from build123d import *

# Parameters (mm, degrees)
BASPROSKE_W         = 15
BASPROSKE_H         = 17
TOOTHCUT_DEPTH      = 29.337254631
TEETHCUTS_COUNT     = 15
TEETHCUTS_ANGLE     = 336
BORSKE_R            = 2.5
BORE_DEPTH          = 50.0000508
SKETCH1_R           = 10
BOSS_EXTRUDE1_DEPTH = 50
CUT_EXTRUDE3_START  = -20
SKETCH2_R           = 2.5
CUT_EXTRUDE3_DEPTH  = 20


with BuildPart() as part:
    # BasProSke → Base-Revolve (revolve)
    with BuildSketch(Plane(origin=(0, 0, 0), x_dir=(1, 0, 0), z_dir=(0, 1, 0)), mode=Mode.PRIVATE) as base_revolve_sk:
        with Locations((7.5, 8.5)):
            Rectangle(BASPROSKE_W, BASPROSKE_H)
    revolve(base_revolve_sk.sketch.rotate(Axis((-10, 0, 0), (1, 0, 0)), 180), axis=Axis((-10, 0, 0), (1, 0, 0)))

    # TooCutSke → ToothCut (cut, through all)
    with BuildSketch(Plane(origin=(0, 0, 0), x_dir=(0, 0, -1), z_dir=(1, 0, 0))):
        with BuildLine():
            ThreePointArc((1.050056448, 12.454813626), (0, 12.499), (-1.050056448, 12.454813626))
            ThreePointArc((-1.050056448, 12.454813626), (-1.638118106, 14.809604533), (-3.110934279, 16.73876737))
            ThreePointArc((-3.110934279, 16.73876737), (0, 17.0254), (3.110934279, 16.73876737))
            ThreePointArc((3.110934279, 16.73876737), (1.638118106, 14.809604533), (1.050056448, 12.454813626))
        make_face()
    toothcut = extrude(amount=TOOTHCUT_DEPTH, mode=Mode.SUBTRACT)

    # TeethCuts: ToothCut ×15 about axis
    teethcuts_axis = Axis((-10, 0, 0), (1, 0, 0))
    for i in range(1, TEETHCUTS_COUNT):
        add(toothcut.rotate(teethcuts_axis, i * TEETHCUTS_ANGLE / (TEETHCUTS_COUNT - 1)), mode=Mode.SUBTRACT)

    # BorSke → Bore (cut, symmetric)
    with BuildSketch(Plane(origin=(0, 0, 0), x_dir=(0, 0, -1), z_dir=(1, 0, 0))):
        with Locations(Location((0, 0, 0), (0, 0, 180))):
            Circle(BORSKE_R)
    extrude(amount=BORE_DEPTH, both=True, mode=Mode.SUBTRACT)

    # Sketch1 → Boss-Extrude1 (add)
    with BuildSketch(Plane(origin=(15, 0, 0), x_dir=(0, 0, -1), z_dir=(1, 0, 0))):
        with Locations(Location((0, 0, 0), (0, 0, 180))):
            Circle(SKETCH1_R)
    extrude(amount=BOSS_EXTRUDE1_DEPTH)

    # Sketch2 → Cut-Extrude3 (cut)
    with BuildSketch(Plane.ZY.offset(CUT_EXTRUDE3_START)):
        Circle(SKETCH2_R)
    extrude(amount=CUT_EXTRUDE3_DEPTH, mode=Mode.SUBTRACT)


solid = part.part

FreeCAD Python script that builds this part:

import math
import FreeCAD as App
import Part
import Sketcher
from FreeCAD import Vector

doc = App.newDocument("Part")
body = doc.addObject("PartDesign::Body", "Body")

sketch1 = doc.addObject("Sketcher::SketchObject", "Sketch")
body.addObject(sketch1)
sketch1.AttachmentSupport = (doc.XZ_Plane, [""])
sketch1.MapMode = "FlatFace"
sketch1.addGeometry([
    Part.LineSegment(Vector(0, -17, 0), Vector(0, 0, 0)),
    Part.LineSegment(Vector(0, 0, 0), Vector(15, 0, 0)),
    Part.LineSegment(Vector(15, 0, 0), Vector(15, -17, 0)),
    Part.LineSegment(Vector(15, -17, 0), Vector(0, -17, 0)),
], False)
sketch1.addConstraint([
    Sketcher.Constraint("Coincident", 0, 2, 1, 1),
    Sketcher.Constraint("Coincident", 1, 2, 2, 1),
    Sketcher.Constraint("Coincident", 2, 2, 3, 1),
    Sketcher.Constraint("Coincident", 3, 2, 0, 1),
    Sketcher.Constraint("Vertical", 0),
    Sketcher.Constraint("Horizontal", 1),
    Sketcher.Constraint("Vertical", 2),
    Sketcher.Constraint("Horizontal", 3),
    Sketcher.Constraint("Coincident", 0, 2, -1, 1),
    Sketcher.Constraint("DistanceX", 1, 1, 1, 2, 15.0),
    Sketcher.Constraint("DistanceY", 0, 1, 0, 2, 17.0),
])
revolution = doc.addObject("PartDesign::Revolution", "Revolution")
body.addObject(revolution)
revolution.Profile = sketch1
revolution.ReferenceAxis = (sketch1, ["H_Axis"])
revolution.Angle = 360

sketch2 = doc.addObject("Sketcher::SketchObject", "Sketch001")
body.addObject(sketch2)
sketch2.AttachmentSupport = (doc.YZ_Plane, [""])
sketch2.MapMode = "FlatFace"
sketch2.addGeometry([
    Part.ArcOfCircle(Part.Circle(Vector(0, 0, 0), Vector(0, 0, 1), 12.5), math.radians(-4.82), math.radians(4.82)),
    Part.ArcOfCircle(Part.Circle(Vector(12.2, -7, 0), Vector(0, 0, 1), 6), math.radians(41), math.radians(88)),
    Part.ArcOfCircle(Part.Circle(Vector(0, 0, 0), Vector(0, 0, 1), 17), math.radians(-11), math.radians(11)),
    Part.ArcOfCircle(Part.Circle(Vector(12.2, 7, 0), Vector(0, 0, 1), 6), math.radians(-88), math.radians(-41)),
], False)
sketch2.addConstraint([
    Sketcher.Constraint("Coincident", 0, 1, 1, 2),
    Sketcher.Constraint("Coincident", 1, 1, 2, 1),
    Sketcher.Constraint("Coincident", 2, 2, 3, 2),
    Sketcher.Constraint("Coincident", 3, 1, 0, 2),
    Sketcher.Constraint("Coincident", 0, 3, -1, 1),
    Sketcher.Constraint("Coincident", 2, 3, -1, 1),
    Sketcher.Constraint("Equal", 1, 3),
    Sketcher.Constraint("Symmetric", 1, 3, 3, 3, -1),
    Sketcher.Constraint("Radius", 1, 6.0),
    Sketcher.Constraint("Radius", 0, 12.499),
    Sketcher.Constraint("Radius", 2, 17.0254),
    Sketcher.Constraint("DistanceY", 1, 3, 3, 3, 14.089999),
    Sketcher.Constraint("DistanceX", -1, 1, 1, 3, 12.208521),
])
pocket1 = doc.addObject("PartDesign::Pocket", "Pocket")
body.addObject(pocket1)
pocket1.Profile = sketch2
pocket1.Type = "ThroughAll"
pocket1.Reversed = True
doc.recompute()

polarpattern = doc.addObject("PartDesign::PolarPattern", "PolarPattern")
body.addObject(polarpattern)
polarpattern.Originals = [pocket1]
polarpattern.Axis = (doc.X_Axis, [""])
polarpattern.Angle = 360
polarpattern.Occurrences = 15
body.Tip = polarpattern

sketch3 = doc.addObject("Sketcher::SketchObject", "Sketch002")
body.addObject(sketch3)
sketch3.AttachmentSupport = (doc.YZ_Plane, [""])
sketch3.MapMode = "FlatFace"
sketch3.addGeometry(Part.Circle(Vector(0, 0, 0), Vector(0, 0, 1), 2.5), False)
sketch3.addConstraint([
    Sketcher.Constraint("Coincident", 0, 3, -1, 1),
    Sketcher.Constraint("Diameter", 0, 5.0),
])
pocket2 = doc.addObject("PartDesign::Pocket", "Pocket001")
body.addObject(pocket2)
pocket2.Profile = sketch3
pocket2.Length = 100.000102
pocket2.Midplane = True

sketch4 = doc.addObject("Sketcher::SketchObject", "Sketch003")
body.addObject(sketch4)
sketch4.AttachmentSupport = (doc.YZ_Plane, [""])
sketch4.MapMode = "FlatFace"
sketch4.AttachmentOffset = App.Placement(Vector(0, 0, 15), App.Rotation())
sketch4.addGeometry(Part.Circle(Vector(0, 0, 0), Vector(0, 0, 1), 10), False)
sketch4.addConstraint([
    Sketcher.Constraint("Coincident", 0, 3, -1, 1),
    Sketcher.Constraint("Diameter", 0, 20.0),
])
pad1 = doc.addObject("PartDesign::Pad", "Pad")
body.addObject(pad1)
pad1.Profile = sketch4
pad1.Length = 50

sketch5 = doc.addObject("Sketcher::SketchObject", "Sketch004")
body.addObject(sketch5)
sketch5.AttachmentSupport = (doc.YZ_Plane, [""])
sketch5.MapMode = "FlatFace"
sketch5.AttachmentOffset = App.Placement(Vector(0, 0, 20), App.Rotation())
sketch5.addGeometry(Part.Circle(Vector(0, 0, 0), Vector(0, 0, 1), 2.5), False)
sketch5.addConstraint([
    Sketcher.Constraint("Coincident", 0, 3, -1, 1),
    Sketcher.Constraint("Diameter", 0, 5.0),
])
pocket3 = doc.addObject("PartDesign::Pocket", "Pocket002")
body.addObject(pocket3)
pocket3.Profile = sketch5
pocket3.Length = 20

doc.recompute()
